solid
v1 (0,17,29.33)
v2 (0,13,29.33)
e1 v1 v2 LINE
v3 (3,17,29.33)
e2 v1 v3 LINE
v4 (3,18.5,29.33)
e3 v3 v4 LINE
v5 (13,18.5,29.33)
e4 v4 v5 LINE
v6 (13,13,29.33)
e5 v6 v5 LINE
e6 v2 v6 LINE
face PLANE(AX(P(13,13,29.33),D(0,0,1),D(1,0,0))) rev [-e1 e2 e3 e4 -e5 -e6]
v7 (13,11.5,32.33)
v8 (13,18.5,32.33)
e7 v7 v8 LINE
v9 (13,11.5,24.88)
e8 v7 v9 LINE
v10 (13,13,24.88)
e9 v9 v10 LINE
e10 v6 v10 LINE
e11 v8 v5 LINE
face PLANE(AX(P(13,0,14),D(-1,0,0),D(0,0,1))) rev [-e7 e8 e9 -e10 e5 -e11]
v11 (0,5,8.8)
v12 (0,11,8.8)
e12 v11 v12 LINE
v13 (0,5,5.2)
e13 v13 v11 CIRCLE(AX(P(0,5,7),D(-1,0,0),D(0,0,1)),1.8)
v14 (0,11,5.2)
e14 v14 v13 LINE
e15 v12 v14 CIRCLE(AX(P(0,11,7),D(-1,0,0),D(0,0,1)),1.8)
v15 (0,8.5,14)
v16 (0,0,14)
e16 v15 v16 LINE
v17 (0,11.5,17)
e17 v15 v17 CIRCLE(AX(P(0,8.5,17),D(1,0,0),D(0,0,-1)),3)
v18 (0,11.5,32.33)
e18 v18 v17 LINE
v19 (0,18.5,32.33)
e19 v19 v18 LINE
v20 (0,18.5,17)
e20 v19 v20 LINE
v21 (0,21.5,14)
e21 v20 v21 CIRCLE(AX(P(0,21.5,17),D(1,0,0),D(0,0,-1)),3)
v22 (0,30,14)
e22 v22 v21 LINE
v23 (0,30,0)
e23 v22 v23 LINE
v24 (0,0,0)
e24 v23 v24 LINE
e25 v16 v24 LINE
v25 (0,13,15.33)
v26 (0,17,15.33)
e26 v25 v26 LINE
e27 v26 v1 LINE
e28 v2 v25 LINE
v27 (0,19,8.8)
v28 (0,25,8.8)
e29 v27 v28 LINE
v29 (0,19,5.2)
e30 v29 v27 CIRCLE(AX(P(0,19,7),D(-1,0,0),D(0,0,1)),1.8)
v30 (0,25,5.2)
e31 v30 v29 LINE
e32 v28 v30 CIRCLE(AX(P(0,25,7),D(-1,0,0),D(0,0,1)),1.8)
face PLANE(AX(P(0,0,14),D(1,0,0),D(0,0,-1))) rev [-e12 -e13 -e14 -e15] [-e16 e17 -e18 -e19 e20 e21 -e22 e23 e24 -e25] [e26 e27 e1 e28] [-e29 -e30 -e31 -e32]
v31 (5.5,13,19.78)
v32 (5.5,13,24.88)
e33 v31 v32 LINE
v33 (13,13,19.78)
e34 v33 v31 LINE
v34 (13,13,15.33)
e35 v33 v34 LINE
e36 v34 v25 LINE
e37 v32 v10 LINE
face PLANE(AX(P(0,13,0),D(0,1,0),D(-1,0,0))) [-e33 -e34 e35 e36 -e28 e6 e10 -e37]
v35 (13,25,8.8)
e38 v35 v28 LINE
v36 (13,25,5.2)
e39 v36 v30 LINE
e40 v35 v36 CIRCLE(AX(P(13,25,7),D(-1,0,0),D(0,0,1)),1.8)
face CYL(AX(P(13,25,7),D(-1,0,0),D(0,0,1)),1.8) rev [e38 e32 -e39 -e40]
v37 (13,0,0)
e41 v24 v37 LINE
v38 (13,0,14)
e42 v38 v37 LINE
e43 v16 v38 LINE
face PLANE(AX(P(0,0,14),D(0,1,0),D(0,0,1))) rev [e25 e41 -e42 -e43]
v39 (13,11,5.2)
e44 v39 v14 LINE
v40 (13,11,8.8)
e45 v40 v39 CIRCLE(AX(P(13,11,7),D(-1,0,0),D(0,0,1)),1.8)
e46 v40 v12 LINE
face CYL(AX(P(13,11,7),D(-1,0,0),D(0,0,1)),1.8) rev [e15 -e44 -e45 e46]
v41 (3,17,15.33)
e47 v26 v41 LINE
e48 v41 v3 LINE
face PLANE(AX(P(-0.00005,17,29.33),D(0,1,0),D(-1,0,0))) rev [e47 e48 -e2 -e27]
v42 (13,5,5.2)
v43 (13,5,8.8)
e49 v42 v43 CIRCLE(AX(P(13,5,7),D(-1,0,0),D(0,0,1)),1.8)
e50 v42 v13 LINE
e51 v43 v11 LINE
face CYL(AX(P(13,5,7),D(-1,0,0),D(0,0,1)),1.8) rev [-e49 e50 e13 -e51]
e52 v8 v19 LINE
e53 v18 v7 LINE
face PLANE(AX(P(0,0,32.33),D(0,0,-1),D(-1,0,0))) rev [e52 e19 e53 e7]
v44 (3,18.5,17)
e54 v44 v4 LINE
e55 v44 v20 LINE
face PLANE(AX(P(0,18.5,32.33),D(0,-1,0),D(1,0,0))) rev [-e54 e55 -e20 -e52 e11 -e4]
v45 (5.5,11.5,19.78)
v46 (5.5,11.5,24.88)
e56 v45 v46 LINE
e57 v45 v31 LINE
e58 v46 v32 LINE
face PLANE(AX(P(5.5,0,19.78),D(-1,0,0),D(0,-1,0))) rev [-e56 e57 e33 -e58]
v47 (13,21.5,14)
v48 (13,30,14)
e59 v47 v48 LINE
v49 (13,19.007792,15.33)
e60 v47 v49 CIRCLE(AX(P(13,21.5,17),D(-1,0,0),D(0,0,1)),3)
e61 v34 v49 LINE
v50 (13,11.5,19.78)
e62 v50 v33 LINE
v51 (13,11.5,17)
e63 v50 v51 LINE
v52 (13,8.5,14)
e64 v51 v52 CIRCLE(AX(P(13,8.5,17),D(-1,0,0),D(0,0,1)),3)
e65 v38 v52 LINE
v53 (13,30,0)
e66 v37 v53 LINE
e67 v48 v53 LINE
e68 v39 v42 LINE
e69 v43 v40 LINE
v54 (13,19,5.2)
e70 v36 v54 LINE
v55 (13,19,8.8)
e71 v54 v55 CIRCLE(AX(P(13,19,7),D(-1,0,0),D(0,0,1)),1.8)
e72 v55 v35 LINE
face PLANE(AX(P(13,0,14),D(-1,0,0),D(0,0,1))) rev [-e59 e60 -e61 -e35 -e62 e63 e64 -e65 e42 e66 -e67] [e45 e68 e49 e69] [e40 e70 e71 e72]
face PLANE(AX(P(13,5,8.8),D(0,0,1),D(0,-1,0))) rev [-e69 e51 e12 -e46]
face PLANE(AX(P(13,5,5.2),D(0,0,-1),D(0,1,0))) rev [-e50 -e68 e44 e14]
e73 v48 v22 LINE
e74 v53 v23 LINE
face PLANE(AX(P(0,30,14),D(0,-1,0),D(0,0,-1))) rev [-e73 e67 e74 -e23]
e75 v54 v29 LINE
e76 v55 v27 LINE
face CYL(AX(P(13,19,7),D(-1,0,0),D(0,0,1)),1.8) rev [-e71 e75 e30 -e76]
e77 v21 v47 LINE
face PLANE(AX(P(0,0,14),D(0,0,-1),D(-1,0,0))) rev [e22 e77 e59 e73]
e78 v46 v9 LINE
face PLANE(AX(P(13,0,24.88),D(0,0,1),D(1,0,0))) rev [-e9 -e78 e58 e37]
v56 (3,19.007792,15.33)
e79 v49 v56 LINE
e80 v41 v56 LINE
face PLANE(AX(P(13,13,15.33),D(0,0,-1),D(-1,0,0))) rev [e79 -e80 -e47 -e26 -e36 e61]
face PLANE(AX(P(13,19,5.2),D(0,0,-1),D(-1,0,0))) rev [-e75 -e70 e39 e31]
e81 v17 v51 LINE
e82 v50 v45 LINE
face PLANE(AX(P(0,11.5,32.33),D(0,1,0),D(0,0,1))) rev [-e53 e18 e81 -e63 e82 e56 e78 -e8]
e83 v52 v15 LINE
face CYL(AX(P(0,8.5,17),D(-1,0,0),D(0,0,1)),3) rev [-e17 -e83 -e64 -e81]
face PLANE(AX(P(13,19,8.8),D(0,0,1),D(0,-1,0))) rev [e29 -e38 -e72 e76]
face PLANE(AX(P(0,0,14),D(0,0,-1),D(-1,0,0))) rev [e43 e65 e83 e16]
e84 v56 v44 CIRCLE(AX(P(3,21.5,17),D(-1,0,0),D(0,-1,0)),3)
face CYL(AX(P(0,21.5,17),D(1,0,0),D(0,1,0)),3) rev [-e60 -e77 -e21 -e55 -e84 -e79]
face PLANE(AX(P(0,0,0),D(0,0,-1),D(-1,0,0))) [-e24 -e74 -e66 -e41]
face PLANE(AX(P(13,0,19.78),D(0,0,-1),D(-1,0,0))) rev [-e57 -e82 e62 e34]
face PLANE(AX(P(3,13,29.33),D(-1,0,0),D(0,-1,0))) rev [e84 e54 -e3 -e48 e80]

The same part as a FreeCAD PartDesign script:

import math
import FreeCAD as App
import Part
import Sketcher


def edges_at(feature, points):
    """Names of the edges that pass closest to the given points."""
    edges = feature.Shape.Edges
    near = lambda p: min(range(len(edges)), key=lambda i: edges[i].distToShape(Part.Vertex(*p))[0])
    return sorted({f"Edge{near(p) + 1}" for p in points})


def add_polygon(sketch, points):
    """Adds a closed chain of lines whose ends are joined by coincident constraints."""
    first, n = sketch.GeometryCount, len(points)
    for a, b in zip(points, points[1:] + points[:1]):
        sketch.addGeometry(Part.LineSegment(App.Vector(*a, 0), App.Vector(*b, 0)), False)
    for i in range(n):
        sketch.addConstraint(Sketcher.Constraint("Coincident", first + i, 2, first + (i + 1) % n, 1))

doc = App.newDocument("Part")
body = doc.addObject("PartDesign::Body", "Body")

# Sketch on XY plane
sketch1 = body.newObject("Sketcher::SketchObject", "Sketch")
sketch1.AttachmentSupport = (doc.getObject("XY_Plane"), [""])
sketch1.MapMode = "FlatFace"
add_polygon(sketch1, [(0, 30), (0, 0), (13, 0), (13, 30)])  # lines 0-3
sketch1.addConstraint(Sketcher.Constraint("Vertical", 0))
sketch1.addConstraint(Sketcher.Constraint("Horizontal", 1))
sketch1.addConstraint(Sketcher.Constraint("Vertical", 2))
sketch1.addConstraint(Sketcher.Constraint("Horizontal", 3))
sketch1.addConstraint(Sketcher.Constraint("Coincident", 0, 2, -1, 1))
sketch1.addConstraint(Sketcher.Constraint("DistanceX", 1, 1, 1, 2, 13.0))
sketch1.addConstraint(Sketcher.Constraint("DistanceY", 0, 2, 0, 1, 30.0))
pad1 = body.newObject("PartDesign::Pad", "Pad")
pad1.Profile = sketch1
pad1.Length = 14

# Sketch on XY plane
sketch2 = body.newObject("Sketcher::SketchObject", "Sketch001")
sketch2.AttachmentSupport = (doc.getObject("XY_Plane"), [""])
sketch2.MapMode = "FlatFace"
sketch2.AttachmentOffset = App.Placement(App.Vector(0, 0, 14), App.Rotation())
add_polygon(sketch2, [(0, 18), (0, 12), (13, 12), (13, 18)])  # lines 0-3
sketch2.addConstraint(Sketcher.Constraint("Vertical", 0))
sketch2.addConstraint(Sketcher.Constraint("Horizontal", 1))
sketch2.addConstraint(Sketcher.Constraint("Vertical", 2))
sketch2.addConstraint(Sketcher.Constraint("Horizontal", 3))
sketch2.addConstraint(Sketcher.Constraint("PointOnObject", 0, 2, -2))
sketch2.addConstraint(Sketcher.Constraint("DistanceX", 1, 1, 1, 2, 13.0))
sketch2.addConstraint(Sketcher.Constraint("DistanceY", 0, 2, 0, 1, 7.0))
sketch2.addConstraint(Sketcher.Constraint("DistanceY", -1, 1, 0, 2, 11.5))
pad2 = body.newObject("PartDesign::Pad", "Pad001")
pad2.Profile = sketch2
pad2.Length = 18.33

# Sketch on XZ plane
sketch3 = body.newObject("Sketcher::SketchObject", "Sketch002")
sketch3.AttachmentSupport = (doc.getObject("XZ_Plane"), [""])
sketch3.MapMode = "FlatFace"
sketch3.AttachmentOffset = App.Placement(App.Vector(0, 0, -18.5), App.Rotation())
add_polygon(sketch3, [(3, 15), (3, 29), (13, 29), (13, 15)])  # lines 0-3
sketch3.addConstraint(Sketcher.Constraint("Vertical", 0))
sketch3.addConstraint(Sketcher.Constraint("Horizontal", 1))
sketch3.addConstraint(Sketcher.Constraint("Vertical", 2))
sketch3.addConstraint(Sketcher.Constraint("Horizontal", 3))
sketch3.addConstraint(Sketcher.Constraint("DistanceX", 1, 1, 1, 2, 10.0))
sketch3.addConstraint(Sketcher.Constraint("DistanceY", 0, 1, 0, 2, 14.0))
sketch3.addConstraint(Sketcher.Constraint("DistanceX", -1, 1, 0, 2, 3.0))
sketch3.addConstraint(Sketcher.Constraint("DistanceY", -1, 1, 0, 2, 29.33))
pocket1 = body.newObject("PartDesign::Pocket", "Pocket")
pocket1.Profile = sketch3
pocket1.Length = 5.5
pocket1.Reversed = True

# Sketch on YZ plane
sketch4 = body.newObject("Sketcher::SketchObject", "Sketch003")
sketch4.AttachmentSupport = (doc.getObject("YZ_Plane"), [""])
sketch4.MapMode = "FlatFace"
sketch4.AttachmentOffset = App.Placement(App.Vector(0, 0, 3), App.Rotation())
add_polygon(sketch4, [(17, 29.3), (13, 29.3), (13, 15.3), (17, 15.3)])  # lines 0-3
sketch4.addConstraint(Sketcher.Constraint("Horizontal", 0))
sketch4.addConstraint(Sketcher.Constraint("Vertical", 1))
sketch4.addConstraint(Sketcher.Constraint("Horizontal", 2))
sketch4.addConstraint(Sketcher.Constraint("Vertical", 3))
sketch4.addConstraint(Sketcher.Constraint("DistanceX", 0, 2, 0, 1, 4.0))
sketch4.addConstraint(Sketcher.Constraint("DistanceY", 1, 2, 1, 1, 14.0))
sketch4.addConstraint(Sketcher.Constraint("DistanceX", -1, 1, 0, 2, 13.0))
sketch4.addConstraint(Sketcher.Constraint("DistanceY", -1, 1, 0, 2, 29.33))
pocket2 = body.newObject("PartDesign::Pocket", "Pocket001")
pocket2.Profile = sketch4
pocket2.Type = "ThroughAll"
doc.recompute()

fillet = body.newObject("PartDesign::Fillet", "Fillet")
fillet.Base = (pocket2, edges_at(pocket2, [(6.5, 11.5, 14), (6.5, 18.5, 14)]))
fillet.Radius = 3

# Sketch on YZ plane
sketch5 = body.newObject("Sketcher::SketchObject", "Sketch004")
sketch5.AttachmentSupport = (doc.getObject("YZ_Plane"), [""])
sketch5.MapMode = "FlatFace"
sketch5.addGeometry(Part.LineSegment(App.Vector(11, 5.2, 0), App.Vector(5, 5.2, 0)), False)
sketch5.addGeometry(Part.ArcOfCircle(Part.Circle(App.Vector(5, 7, 0), App.Vector(0, 0, 1), 1.8), math.radians(90), math.radians(270)), False)
sketch5.addGeometry(Part.LineSegment(App.Vector(5, 8.8, 0), App.Vector(11, 8.8, 0)), False)
sketch5.addGeometry(Part.ArcOfCircle(Part.Circle(App.Vector(11, 7, 0), App.Vector(0, 0, 1), 1.8), math.radians(-90), math.radians(90)), False)
sketch5.addGeometry(Part.LineSegment(App.Vector(25, 5.2, 0), App.Vector(19, 5.2, 0)), False)
sketch5.addGeometry(Part.ArcOfCircle(Part.Circle(App.Vector(19, 7, 0), App.Vector(0, 0, 1), 1.8), math.radians(90), math.radians(270)), False)
sketch5.addGeometry(Part.LineSegment(App.Vector(19, 8.8, 0), App.Vector(25, 8.8, 0)), False)
sketch5.addGeometry(Part.ArcOfCircle(Part.Circle(App.Vector(25, 7, 0), App.Vector(0, 0, 1), 1.8), math.radians(-90), math.radians(90)), False)
sketch5.addConstraint(Sketcher.Constraint("Tangent", 0, 2, 1, 2))
sketch5.addConstraint(Sketcher.Constraint("Tangent", 1, 1, 2, 1))
sketch5.addConstraint(Sketcher.Constraint("Tangent", 2, 2, 3, 2))
sketch5.addConstraint(Sketcher.Constraint("Tangent", 3, 1, 0, 1))
sketch5.addConstraint(Sketcher.Constraint("Tangent", 4, 2, 5, 2))
sketch5.addConstraint(Sketcher.Constraint("Tangent", 5, 1, 6, 1))
sketch5.addConstraint(Sketcher.Constraint("Tangent", 6, 2, 7, 2))
sketch5.addConstraint(Sketcher.Constraint("Tangent", 7, 1, 4, 1))
sketch5.addConstraint(Sketcher.Constraint("Horizontal", 0))
sketch5.addConstraint(Sketcher.Constraint("Horizontal", 2))
sketch5.addConstraint(Sketcher.Constraint("Horizontal", 4))
sketch5.addConstraint(Sketcher.Constraint("Horizontal", 6))
sketch5.addConstraint(Sketcher.Constraint("Equal", 3, 5))
sketch5.addConstraint(Sketcher.Constraint("Horizontal", 3, 3, 5, 3))
sketch5.addConstraint(Sketcher.Constraint("Equal", 2, 4))
sketch5.addConstraint(Sketcher.Constraint("Radius", 1, 1.8))
sketch5.addConstraint(Sketcher.Constraint("DistanceX", 0, 2, 0, 1, 6.0))
sketch5.addConstraint(Sketcher.Constraint("DistanceX", -1, 1, 1, 3, 5.0))
sketch5.addConstraint(Sketcher.Constraint("DistanceY", -1, 1, 1, 3, 7.0))
sketch5.addConstraint(Sketcher.Constraint("DistanceX", -1, 1, 5, 3, 19.0))
pocket3 = body.newObject("PartDesign::Pocket", "Pocket002")
pocket3.Profile = sketch5
pocket3.Type = "ThroughAll"
pocket3.Reversed = True

# Sketch on XZ plane
sketch6 = body.newObject("Sketcher::SketchObject", "Sketch005")
sketch6.AttachmentSupport = (doc.getObject("XZ_Plane"), [""])
sketch6.MapMode = "FlatFace"
sketch6.AttachmentOffset = App.Placement(App.Vector(0, 0, -13), App.Rotation())
add_polygon(sketch6, [(6, 20), (6, 25), (13, 25), (13, 20)])  # lines 0-3
sketch6.addConstraint(Sketcher.Constraint("Vertical", 0))
sketch6.addConstraint(Sketcher.Constraint("Horizontal", 1))
sketch6.addConstraint(Sketcher.Constraint("Vertical", 2))
sketch6.addConstraint(Sketcher.Constraint("Horizontal", 3))
sketch6.addConstraint(Sketcher.Constraint("DistanceX", 1, 1, 1, 2, 7.5))
sketch6.addConstraint(Sketcher.Constraint("DistanceY", 0, 1, 0, 2, 5.1))
sketch6.addConstraint(Sketcher.Constraint("DistanceX", -1, 1, 1, 2, 13.0))
sketch6.addConstraint(Sketcher.Constraint("DistanceY", -1, 1, 0, 2, 24.88))
pocket4 = body.newObject("PartDesign::Pocket", "Pocket003")
pocket4.Profile = sketch6
pocket4.Type = "ThroughAll"
pocket4.Reversed = True

doc.recompute()
